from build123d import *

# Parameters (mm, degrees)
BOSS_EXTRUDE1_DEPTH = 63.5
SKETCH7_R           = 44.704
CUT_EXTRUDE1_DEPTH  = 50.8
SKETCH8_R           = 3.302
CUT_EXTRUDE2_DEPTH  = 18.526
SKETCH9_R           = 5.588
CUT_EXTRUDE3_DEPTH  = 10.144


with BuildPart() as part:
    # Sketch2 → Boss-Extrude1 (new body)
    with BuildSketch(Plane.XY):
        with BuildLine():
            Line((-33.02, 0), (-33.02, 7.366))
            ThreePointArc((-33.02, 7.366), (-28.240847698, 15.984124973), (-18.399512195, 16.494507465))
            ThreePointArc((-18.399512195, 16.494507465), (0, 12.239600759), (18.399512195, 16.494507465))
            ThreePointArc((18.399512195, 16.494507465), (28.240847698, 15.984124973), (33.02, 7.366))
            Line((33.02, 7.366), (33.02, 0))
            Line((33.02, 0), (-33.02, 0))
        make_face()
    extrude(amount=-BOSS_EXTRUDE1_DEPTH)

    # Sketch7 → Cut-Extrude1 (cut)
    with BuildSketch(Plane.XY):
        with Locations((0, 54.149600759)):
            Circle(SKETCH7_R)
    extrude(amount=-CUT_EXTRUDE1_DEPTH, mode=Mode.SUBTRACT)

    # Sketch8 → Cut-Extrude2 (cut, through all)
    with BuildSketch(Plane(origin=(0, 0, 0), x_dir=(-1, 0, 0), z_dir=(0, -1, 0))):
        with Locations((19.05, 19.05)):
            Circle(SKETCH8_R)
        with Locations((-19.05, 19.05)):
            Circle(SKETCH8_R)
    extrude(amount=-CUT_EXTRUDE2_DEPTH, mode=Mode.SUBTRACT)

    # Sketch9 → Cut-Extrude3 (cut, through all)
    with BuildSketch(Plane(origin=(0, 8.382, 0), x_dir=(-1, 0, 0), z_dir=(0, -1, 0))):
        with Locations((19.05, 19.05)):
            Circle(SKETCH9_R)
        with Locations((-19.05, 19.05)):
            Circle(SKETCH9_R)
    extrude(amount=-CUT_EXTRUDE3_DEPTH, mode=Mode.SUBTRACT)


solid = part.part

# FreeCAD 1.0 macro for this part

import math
import FreeCAD as App
import Part
import Sketcher
Q = App.Units.Quantity

doc = App.newDocument("Part")
body = doc.addObject("PartDesign::Body", "Body")

# Sketch on XY plane
sketch1 = body.newObject("Sketcher::SketchObject", "Sketch")
sketch1.AttachmentSupport = (doc.getObject("XY_Plane"), [""])
sketch1.MapMode = "FlatFace"
sketch1.addGeometry(Part.LineSegment(App.Vector(-33, 7, 0), App.Vector(-33, 0, 0)), False)
sketch1.addGeometry(Part.LineSegment(App.Vector(-33, 0, 0), App.Vector(33, 0, 0)), False)
sketch1.addGeometry(Part.LineSegment(App.Vector(33, 0, 0), App.Vector(33, 7, 0)), False)
sketch1.addGeometry(Part.ArcOfCircle(Part.Circle(App.Vector(23, 7, 0), App.Vector(0, 0, 1), 10), math.radians(0), math.radians(116)), False)
sketch1.addGeometry(Part.ArcOfCircle(Part.Circle(App.Vector(0, 54, 0), App.Vector(0, 0, 1), 42), math.radians(-116), math.radians(-64)), False)
sketch1.addGeometry(Part.ArcOfCircle(Part.Circle(App.Vector(-23, 7, 0), App.Vector(0, 0, 1), 10), math.radians(64), math.radians(180)), False)
sketch1.addConstraint(Sketcher.Constraint("Coincident", 0, 2, 1, 1))
sketch1.addConstraint(Sketcher.Constraint("Coincident", 1, 2, 2, 1))
sketch1.addConstraint(Sketcher.Constraint("Tangent", 2, 2, 3, 1))
sketch1.addConstraint(Sketcher.Constraint("Tangent", 3, 2, 4, 2))
sketch1.addConstraint(Sketcher.Constraint("Tangent", 4, 1, 5, 1))
sketch1.addConstraint(Sketcher.Constraint("Tangent", 5, 2, 0, 1))
sketch1.addConstraint(Sketcher.Constraint("Vertical", 0))
sketch1.addConstraint(Sketcher.Constraint("Horizontal", 1))
sketch1.addConstraint(Sketcher.Constraint("Vertical", 2))
sketch1.addConstraint(Sketcher.Constraint("Equal", 3, 5))
sketch1.addConstraint(Sketcher.Constraint("Symmetric", 0, 2, 1, 2, -1, 1))
sketch1.addConstraint(Sketcher.Constraint("PointOnObject", 4, 3, -2))
sketch1.addConstraint(Sketcher.Constraint("Radius", 3, Q("0.4 in")))
sketch1.addConstraint(Sketcher.Constraint("Radius", 4, Q("1.65 in")))
sketch1.addConstraint(Sketcher.Constraint("DistanceX", 1, 1, 1, 2, Q("2.6 in")))
sketch1.addConstraint(Sketcher.Constraint("DistanceY", 0, 2, 0, 1, Q("0.29 in")))
pad1 = body.newObject("PartDesign::Pad", "Pad")
pad1.Profile = sketch1
pad1.Length = Q("2.5 in")
pad1.Reversed = True

# Sketch on XY plane
sketch2 = body.newObject("Sketcher::SketchObject", "Sketch001")
sketch2.AttachmentSupport = (doc.getObject("XY_Plane"), [""])
sketch2.MapMode = "FlatFace"
sketch2.addGeometry(Part.Circle(App.Vector(0, 54, 0), App.Vector(0, 0, 1), 45), False)
sketch2.addConstraint(Sketcher.Constraint("PointOnObject", 0, 3, -2))
sketch2.addConstraint(Sketcher.Constraint("Diameter", 0, Q("3.52 in")))
sketch2.addConstraint(Sketcher.Constraint("DistanceY", -1, 1, 0, 3, 54.149601))
pocket1 = body.newObject("PartDesign::Pocket", "Pocket")
pocket1.Profile = sketch2
pocket1.Length = Q("2 in")

# Sketch on XZ plane
sketch3 = body.newObject("Sketcher::SketchObject", "Sketch002")
sketch3.AttachmentSupport = (doc.getObject("XZ_Plane"), [""])
sketch3.MapMode = "FlatFace"
sketch3.addGeometry(Part.Circle(App.Vector(-19.1, -19.1, 0), App.Vector(0, 0, 1), 3.3), False)
sketch3.addGeometry(Part.Circle(App.Vector(19.1, -19.1, 0), App.Vector(0, 0, 1), 3.3), False)
sketch3.addConstraint(Sketcher.Constraint("Equal", 0, 1))
sketch3.addConstraint(Sketcher.Constraint("Symmetric", 0, 3, 1, 3, -2))
sketch3.addConstraint(Sketcher.Constraint("Diameter", 0, Q("0.26 in")))
sketch3.addConstraint(Sketcher.Constraint("DistanceX", 0, 3, 1, 3, Q("1.5 in")))
sketch3.addConstraint(Sketcher.Constraint("DistanceY", 0, 3, -1, 1, Q("0.75 in")))
pocket2 = body.newObject("PartDesign::Pocket", "Pocket001")
pocket2.Profile = sketch3
pocket2.Type = "ThroughAll"

# Sketch on XZ plane
sketch4 = body.newObject("Sketcher::SketchObject", "Sketch003")
sketch4.AttachmentSupport = (doc.getObject("XZ_Plane"), [""])
sketch4.MapMode = "FlatFace"
sketch4.AttachmentOffset = App.Placement(App.Vector(0, 0, -0.33 * 25.4), App.Rotation())
sketch4.addGeometry(Part.Circle(App.Vector(-19, -19, 0), App.Vector(0, 0, 1), 6), False)
sketch4.addGeometry(Part.Circle(App.Vector(19, -19, 0), App.Vector(0, 0, 1), 6), False)
sketch4.addConstraint(Sketcher.Constraint("Equal", 0, 1))
sketch4.addConstraint(Sketcher.Constraint("Symmetric", 0, 3, 1, 3, -2))
sketch4.addConstraint(Sketcher.Constraint("Diameter", 0, Q("0.44 in")))
sketch4.addConstraint(Sketcher.Constraint("DistanceX", 0, 3, 1, 3, Q("1.5 in")))
sketch4.addConstraint(Sketcher.Constraint("DistanceY", 0, 3, -1, 1, Q("0.75 in")))
pocket3 = body.newObject("PartDesign::Pocket", "Pocket002")
pocket3.Profile = sketch4
pocket3.Type = "ThroughAll"

doc.recompute()
